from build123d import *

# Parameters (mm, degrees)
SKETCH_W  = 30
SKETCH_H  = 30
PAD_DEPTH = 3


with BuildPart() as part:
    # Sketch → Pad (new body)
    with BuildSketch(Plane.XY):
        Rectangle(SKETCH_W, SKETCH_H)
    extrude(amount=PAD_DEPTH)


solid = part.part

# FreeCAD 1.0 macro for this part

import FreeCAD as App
import Part
import Sketcher
from FreeCAD import Vector
Q = App.Units.Quantity

doc = App.newDocument("Part")
params = doc.addObject("Spreadsheet::Sheet", "Params")
for row, (alias, value) in enumerate([
    ("sketch1_width", "30 mm"),
    ("pad1_length", "3 mm"),
], start=1):
    params.set(f"A{row}", alias)
    params.set(f"B{row}", "=" + value)
    params.setAlias(f"B{row}", alias)

body = doc.addObject("PartDesign::Body", "Body")

# Sketch on XY plane
sketch1 = body.newObject("Sketcher::SketchObject", "Sketch")
sketch1.AttachmentSupport = (doc.getObject("XY_Plane"), [""])
sketch1.MapMode = "FlatFace"
sketch1.addGeometry(Part.LineSegment(Vector(-15, 15, 0), Vector(-15, -15, 0)), False)
sketch1.addGeometry(Part.LineSegment(Vector(-15, -15, 0), Vector(15, -15, 0)), False)
sketch1.addGeometry(Part.LineSegment(Vector(15, -15, 0), Vector(15, 15, 0)), False)
sketch1.addGeometry(Part.LineSegment(Vector(15, 15, 0), Vector(-15, 15, 0)), False)
sketch1.addConstraint(Sketcher.Constraint("Coincident", 0, 2, 1, 1))
sketch1.addConstraint(Sketcher.Constraint("Coincident", 1, 2, 2, 1))
sketch1.addConstraint(Sketcher.Constraint("Coincident", 2, 2, 3, 1))
sketch1.addConstraint(Sketcher.Constraint("Coincident", 3, 2, 0, 1))
sketch1.addConstraint(Sketcher.Constraint("Vertical", 0))
sketch1.addConstraint(Sketcher.Constraint("Horizontal", 1))
sketch1.addConstraint(Sketcher.Constraint("Vertical", 2))
sketch1.addConstraint(Sketcher.Constraint("Horizontal", 3))
sketch1.addConstraint(Sketcher.Constraint("Symmetric", 0, 2, 2, 2, -1, 1))
sketch1.addConstraint(Sketcher.Constraint("Equal", 3, 0))
sketch1.addConstraint(Sketcher.Constraint("DistanceX", 1, 1, 1, 2, Q("30 mm")))
sketch1.setExpression("Constraints[10]", "Params.sketch1_width")
pad1 = body.newObject("PartDesign::Pad", "Pad")
pad1.Profile = sketch1
pad1.setExpression("Length", "Params.pad1_length")

doc.recompute()
